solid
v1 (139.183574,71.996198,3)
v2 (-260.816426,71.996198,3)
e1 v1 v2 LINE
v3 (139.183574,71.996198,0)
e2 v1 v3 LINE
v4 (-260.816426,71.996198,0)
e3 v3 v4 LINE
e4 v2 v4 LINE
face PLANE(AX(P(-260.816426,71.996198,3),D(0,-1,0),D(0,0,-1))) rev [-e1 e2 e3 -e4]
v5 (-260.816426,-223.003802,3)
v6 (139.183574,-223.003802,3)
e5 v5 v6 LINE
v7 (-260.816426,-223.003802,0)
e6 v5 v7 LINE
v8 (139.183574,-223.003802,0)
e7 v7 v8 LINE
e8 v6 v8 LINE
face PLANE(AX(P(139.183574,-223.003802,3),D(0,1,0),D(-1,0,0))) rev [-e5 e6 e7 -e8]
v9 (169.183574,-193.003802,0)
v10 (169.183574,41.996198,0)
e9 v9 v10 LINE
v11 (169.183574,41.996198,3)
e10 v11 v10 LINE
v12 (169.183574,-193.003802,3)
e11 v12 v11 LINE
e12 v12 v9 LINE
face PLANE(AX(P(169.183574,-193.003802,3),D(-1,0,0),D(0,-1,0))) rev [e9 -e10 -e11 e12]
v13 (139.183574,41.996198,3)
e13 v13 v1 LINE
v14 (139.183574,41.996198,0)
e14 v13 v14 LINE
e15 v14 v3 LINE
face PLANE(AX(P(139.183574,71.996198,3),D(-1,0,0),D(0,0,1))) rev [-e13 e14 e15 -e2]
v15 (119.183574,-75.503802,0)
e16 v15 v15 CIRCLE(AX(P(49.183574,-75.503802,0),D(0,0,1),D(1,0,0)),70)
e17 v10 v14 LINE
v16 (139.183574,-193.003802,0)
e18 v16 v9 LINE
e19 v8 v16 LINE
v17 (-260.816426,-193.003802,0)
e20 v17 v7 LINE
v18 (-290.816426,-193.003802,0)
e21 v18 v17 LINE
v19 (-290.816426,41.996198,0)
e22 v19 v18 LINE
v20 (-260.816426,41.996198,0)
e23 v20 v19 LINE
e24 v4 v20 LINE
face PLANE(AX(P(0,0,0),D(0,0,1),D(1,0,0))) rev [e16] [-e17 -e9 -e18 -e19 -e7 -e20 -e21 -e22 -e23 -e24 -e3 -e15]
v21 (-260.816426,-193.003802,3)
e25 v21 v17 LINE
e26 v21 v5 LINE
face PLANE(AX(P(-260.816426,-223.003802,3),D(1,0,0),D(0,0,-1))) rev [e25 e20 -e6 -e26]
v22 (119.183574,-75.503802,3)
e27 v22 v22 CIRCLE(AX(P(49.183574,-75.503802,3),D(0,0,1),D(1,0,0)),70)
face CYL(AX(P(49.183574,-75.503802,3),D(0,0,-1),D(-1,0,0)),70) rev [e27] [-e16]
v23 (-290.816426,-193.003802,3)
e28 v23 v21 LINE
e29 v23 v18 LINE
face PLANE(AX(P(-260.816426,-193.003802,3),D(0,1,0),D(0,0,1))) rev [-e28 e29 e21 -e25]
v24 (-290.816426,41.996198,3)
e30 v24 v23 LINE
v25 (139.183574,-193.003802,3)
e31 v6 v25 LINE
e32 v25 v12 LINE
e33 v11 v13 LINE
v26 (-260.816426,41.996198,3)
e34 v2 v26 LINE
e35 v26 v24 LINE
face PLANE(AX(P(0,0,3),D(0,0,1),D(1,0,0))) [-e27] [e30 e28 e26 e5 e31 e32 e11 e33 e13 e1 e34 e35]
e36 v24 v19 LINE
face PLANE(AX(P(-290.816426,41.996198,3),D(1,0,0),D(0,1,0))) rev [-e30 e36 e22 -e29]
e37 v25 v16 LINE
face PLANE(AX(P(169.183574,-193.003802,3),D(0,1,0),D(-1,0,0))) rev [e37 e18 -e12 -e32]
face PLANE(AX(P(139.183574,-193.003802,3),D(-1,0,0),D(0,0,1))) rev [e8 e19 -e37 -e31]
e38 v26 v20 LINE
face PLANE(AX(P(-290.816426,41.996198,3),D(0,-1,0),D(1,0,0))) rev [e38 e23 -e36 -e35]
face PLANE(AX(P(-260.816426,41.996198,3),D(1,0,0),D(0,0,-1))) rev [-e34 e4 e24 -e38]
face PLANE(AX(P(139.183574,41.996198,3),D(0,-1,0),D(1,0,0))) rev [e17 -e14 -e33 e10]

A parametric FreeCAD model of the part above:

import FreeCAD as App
import Part
import Sketcher
Q = App.Units.Quantity


def add_polygon(sketch, points):
    """Adds a closed chain of lines whose ends are joined by coincident constraints."""
    first, n = sketch.GeometryCount, len(points)
    for a, b in zip(points, points[1:] + points[:1]):
        sketch.addGeometry(Part.LineSegment(App.Vector(*a, 0), App.Vector(*b, 0)), False)
    for i in range(n):
        sketch.addConstraint(Sketcher.Constraint("Coincident", first + i, 2, first + (i + 1) % n, 1))

doc = App.newDocument("Part")
params = doc.addObject("Spreadsheet::Sheet", "Params")
for row, (alias, value) in enumerate([
    ("sketch1_diameter", "140 mm"),
    ("sketch1_width", "30 mm"),
    ("sketch1_width2", "400 mm"),
    ("sketch1_height", "235 mm"),
    ("pad1_length", "3 mm"),
], start=1):
    params.set(f"A{row}", alias)
    params.set(f"B{row}", "=" + value)
    params.setAlias(f"B{row}", alias)

body = doc.addObject("PartDesign::Body", "Body")

# Sketch on XY plane
sketch1 = body.newObject("Sketcher::SketchObject", "Sketch")
sketch1.AttachmentSupport = (doc.getObject("XY_Plane"), [""])
sketch1.MapMode = "FlatFace"
add_polygon(sketch1, [(-290.816426, 41.996198), (-290.816426, -193.003802), (-260.816426, -193.003802), (-260.816426, -223.003802), (139.183574, -223.003802), (139.183574, -193.003802), (169.183574, -193.003802), (169.183574, 41.996198), (139.183574, 41.996198), (139.183574, 71.996198), (-260.816426, 71.996198), (-260.816426, 41.996198)])  # lines 0-11
sketch1.addGeometry(Part.Circle(App.Vector(49.183574, -75.503802, 0), App.Vector(0, 0, 1), 70), False)  # 12
sketch1.addConstraint([
    Sketcher.Constraint("Vertical", 0),
    Sketcher.Constraint("Horizontal", 1),
    Sketcher.Constraint("Vertical", 2),
    Sketcher.Constraint("Horizontal", 3),
    Sketcher.Constraint("Vertical", 4),
    Sketcher.Constraint("Horizontal", 5),
    Sketcher.Constraint("Vertical", 6),
    Sketcher.Constraint("Horizontal", 7),
    Sketcher.Constraint("Vertical", 8),
    Sketcher.Constraint("Horizontal", 9),
    Sketcher.Constraint("Vertical", 10),
    Sketcher.Constraint("Horizontal", 11),
    Sketcher.Constraint("Horizontal", 1, 2, 4, 2),
    Sketcher.Constraint("Horizontal", 7, 2, 10, 2),
    Sketcher.Constraint("Vertical", 4, 2, 7, 2),
    Sketcher.Constraint("Vertical", 2, 2, 9, 2),
    Sketcher.Constraint("Equal", 1, 5),
    Sketcher.Constraint("Equal", 11, 2),
    Sketcher.Constraint("Equal", 4, 8),
    Sketcher.Constraint("Diameter", 12, Q("140 mm")),
    Sketcher.Constraint("DistanceX", 1, 1, 1, 2, Q("30 mm")),
    Sketcher.Constraint("DistanceX", 3, 1, 3, 2, Q("400 mm")),
    Sketcher.Constraint("DistanceY", 0, 2, 0, 1, Q("235 mm")),
    Sketcher.Constraint("DistanceX", 0, 2, 12, 3, Q("340 mm")),
    Sketcher.Constraint("DistanceY", 0, 2, 12, 3, Q("117.5 mm")),
    Sketcher.Constraint("DistanceX", -1, 1, 12, 3, Q("49.183574 mm")),
    Sketcher.Constraint("DistanceY", 12, 3, -1, 1, Q("75.503802 mm")),
])
sketch1.setExpression("Constraints[31]", "Params.sketch1_diameter")
sketch1.setExpression("Constraints[32]", "Params.sketch1_width")
sketch1.setExpression("Constraints[33]", "Params.sketch1_width2")
sketch1.setExpression("Constraints[34]", "Params.sketch1_height")
pad1 = body.newObject("PartDesign::Pad", "Pad")
pad1.Profile = sketch1
pad1.setExpression("Length", "Params.pad1_length")

doc.recompute()
